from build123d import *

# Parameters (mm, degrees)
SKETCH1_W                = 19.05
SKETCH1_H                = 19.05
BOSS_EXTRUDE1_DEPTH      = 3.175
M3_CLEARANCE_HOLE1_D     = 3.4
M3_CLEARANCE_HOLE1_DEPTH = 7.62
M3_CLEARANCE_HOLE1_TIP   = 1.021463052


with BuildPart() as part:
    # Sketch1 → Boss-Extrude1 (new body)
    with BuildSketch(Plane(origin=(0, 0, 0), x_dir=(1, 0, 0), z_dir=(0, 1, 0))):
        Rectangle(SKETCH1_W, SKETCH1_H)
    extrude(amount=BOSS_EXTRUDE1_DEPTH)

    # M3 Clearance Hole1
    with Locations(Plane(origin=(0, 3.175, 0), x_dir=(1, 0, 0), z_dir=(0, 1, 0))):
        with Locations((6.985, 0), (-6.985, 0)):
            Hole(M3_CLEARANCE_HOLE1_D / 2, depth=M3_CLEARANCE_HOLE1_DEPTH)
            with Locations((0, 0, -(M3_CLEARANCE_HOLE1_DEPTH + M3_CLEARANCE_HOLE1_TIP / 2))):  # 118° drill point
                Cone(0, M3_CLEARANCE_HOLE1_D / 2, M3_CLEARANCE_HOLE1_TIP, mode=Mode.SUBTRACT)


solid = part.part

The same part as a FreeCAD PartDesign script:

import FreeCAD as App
import Part
import Sketcher

V = App.Vector
Q = App.Units.Quantity


def add_polygon(sketch, points):
    """Adds a closed chain of lines whose ends are joined by coincident constraints."""
    first, n = sketch.GeometryCount, len(points)
    for a, b in zip(points, points[1:] + points[:1]):
        sketch.addGeometry(Part.LineSegment(App.Vector(*a, 0), App.Vector(*b, 0)), False)
    for i in range(n):
        sketch.addConstraint(Sketcher.Constraint("Coincident", first + i, 2, first + (i + 1) % n, 1))

doc = App.newDocument("Part")
body = doc.addObject("PartDesign::Body", "Body")

sketch1 = doc.addObject("Sketcher::SketchObject", "Sketch")
body.addObject(sketch1)
sketch1.AttachmentSupport = (doc.XZ_Plane, [""])
sketch1.MapMode = "FlatFace"
add_polygon(sketch1, [(-9.525, -9.525), (-9.525, 9.525), (9.525, 9.525), (9.525, -9.525)])
sketch1.addConstraint(Sketcher.Constraint("Vertical", 0))
sketch1.addConstraint(Sketcher.Constraint("Horizontal", 1))
sketch1.addConstraint(Sketcher.Constraint("Vertical", 2))
sketch1.addConstraint(Sketcher.Constraint("Horizontal", 3))
sketch1.addConstraint(Sketcher.Constraint("Symmetric", 0, 2, 2, 2, -1, 1))
sketch1.addConstraint(Sketcher.Constraint("Equal", 3, 0))
sketch1.addConstraint(Sketcher.Constraint("DistanceX", 1, 1, 1, 2, Q("0.75 in")))
pad1 = doc.addObject("PartDesign::Pad", "Pad")
body.addObject(pad1)
pad1.Profile = sketch1
pad1.Length = Q("0.125 in")
pad1.Reversed = True

sketch2 = doc.addObject("Sketcher::SketchObject", "Sketch001")
body.addObject(sketch2)
sketch2.AttachmentSupport = (doc.XZ_Plane, [""])
sketch2.MapMode = "FlatFace"
sketch2.AttachmentOffset = App.Placement(V(0, 0, -0.125 * 25.4), App.Rotation())
sketch2.addGeometry(Part.Circle(V(6.985, 0, 0), V(0, 0, 1), 1.7), False)
sketch2.addGeometry(Part.Circle(V(-6.985, 0, 0), V(0, 0, 1), 1.7), False)
sketch2.addConstraint(Sketcher.Constraint("Equal", 0, 1))
sketch2.addConstraint(Sketcher.Constraint("Symmetric", 0, 3, 1, 3, -1, 1))
sketch2.addConstraint(Sketcher.Constraint("PointOnObject", 0, 3, -1))
sketch2.addConstraint(Sketcher.Constraint("Diameter", 0, 3.4))
sketch2.addConstraint(Sketcher.Constraint("DistanceX", 1, 3, 0, 3, Q("0.55 in")))
doc.recompute()
hole = doc.addObject("PartDesign::Hole", "Hole")
body.addObject(hole)
hole.Profile = sketch2
hole.ThreadType = "None"
hole.Diameter = 3.4
hole.DepthType = "Dimension"
hole.Depth = Q("0.3 in")
hole.DrillPoint = "Angled"
hole.DrillPointAngle = 118
hole.Reversed = True

doc.recompute()
